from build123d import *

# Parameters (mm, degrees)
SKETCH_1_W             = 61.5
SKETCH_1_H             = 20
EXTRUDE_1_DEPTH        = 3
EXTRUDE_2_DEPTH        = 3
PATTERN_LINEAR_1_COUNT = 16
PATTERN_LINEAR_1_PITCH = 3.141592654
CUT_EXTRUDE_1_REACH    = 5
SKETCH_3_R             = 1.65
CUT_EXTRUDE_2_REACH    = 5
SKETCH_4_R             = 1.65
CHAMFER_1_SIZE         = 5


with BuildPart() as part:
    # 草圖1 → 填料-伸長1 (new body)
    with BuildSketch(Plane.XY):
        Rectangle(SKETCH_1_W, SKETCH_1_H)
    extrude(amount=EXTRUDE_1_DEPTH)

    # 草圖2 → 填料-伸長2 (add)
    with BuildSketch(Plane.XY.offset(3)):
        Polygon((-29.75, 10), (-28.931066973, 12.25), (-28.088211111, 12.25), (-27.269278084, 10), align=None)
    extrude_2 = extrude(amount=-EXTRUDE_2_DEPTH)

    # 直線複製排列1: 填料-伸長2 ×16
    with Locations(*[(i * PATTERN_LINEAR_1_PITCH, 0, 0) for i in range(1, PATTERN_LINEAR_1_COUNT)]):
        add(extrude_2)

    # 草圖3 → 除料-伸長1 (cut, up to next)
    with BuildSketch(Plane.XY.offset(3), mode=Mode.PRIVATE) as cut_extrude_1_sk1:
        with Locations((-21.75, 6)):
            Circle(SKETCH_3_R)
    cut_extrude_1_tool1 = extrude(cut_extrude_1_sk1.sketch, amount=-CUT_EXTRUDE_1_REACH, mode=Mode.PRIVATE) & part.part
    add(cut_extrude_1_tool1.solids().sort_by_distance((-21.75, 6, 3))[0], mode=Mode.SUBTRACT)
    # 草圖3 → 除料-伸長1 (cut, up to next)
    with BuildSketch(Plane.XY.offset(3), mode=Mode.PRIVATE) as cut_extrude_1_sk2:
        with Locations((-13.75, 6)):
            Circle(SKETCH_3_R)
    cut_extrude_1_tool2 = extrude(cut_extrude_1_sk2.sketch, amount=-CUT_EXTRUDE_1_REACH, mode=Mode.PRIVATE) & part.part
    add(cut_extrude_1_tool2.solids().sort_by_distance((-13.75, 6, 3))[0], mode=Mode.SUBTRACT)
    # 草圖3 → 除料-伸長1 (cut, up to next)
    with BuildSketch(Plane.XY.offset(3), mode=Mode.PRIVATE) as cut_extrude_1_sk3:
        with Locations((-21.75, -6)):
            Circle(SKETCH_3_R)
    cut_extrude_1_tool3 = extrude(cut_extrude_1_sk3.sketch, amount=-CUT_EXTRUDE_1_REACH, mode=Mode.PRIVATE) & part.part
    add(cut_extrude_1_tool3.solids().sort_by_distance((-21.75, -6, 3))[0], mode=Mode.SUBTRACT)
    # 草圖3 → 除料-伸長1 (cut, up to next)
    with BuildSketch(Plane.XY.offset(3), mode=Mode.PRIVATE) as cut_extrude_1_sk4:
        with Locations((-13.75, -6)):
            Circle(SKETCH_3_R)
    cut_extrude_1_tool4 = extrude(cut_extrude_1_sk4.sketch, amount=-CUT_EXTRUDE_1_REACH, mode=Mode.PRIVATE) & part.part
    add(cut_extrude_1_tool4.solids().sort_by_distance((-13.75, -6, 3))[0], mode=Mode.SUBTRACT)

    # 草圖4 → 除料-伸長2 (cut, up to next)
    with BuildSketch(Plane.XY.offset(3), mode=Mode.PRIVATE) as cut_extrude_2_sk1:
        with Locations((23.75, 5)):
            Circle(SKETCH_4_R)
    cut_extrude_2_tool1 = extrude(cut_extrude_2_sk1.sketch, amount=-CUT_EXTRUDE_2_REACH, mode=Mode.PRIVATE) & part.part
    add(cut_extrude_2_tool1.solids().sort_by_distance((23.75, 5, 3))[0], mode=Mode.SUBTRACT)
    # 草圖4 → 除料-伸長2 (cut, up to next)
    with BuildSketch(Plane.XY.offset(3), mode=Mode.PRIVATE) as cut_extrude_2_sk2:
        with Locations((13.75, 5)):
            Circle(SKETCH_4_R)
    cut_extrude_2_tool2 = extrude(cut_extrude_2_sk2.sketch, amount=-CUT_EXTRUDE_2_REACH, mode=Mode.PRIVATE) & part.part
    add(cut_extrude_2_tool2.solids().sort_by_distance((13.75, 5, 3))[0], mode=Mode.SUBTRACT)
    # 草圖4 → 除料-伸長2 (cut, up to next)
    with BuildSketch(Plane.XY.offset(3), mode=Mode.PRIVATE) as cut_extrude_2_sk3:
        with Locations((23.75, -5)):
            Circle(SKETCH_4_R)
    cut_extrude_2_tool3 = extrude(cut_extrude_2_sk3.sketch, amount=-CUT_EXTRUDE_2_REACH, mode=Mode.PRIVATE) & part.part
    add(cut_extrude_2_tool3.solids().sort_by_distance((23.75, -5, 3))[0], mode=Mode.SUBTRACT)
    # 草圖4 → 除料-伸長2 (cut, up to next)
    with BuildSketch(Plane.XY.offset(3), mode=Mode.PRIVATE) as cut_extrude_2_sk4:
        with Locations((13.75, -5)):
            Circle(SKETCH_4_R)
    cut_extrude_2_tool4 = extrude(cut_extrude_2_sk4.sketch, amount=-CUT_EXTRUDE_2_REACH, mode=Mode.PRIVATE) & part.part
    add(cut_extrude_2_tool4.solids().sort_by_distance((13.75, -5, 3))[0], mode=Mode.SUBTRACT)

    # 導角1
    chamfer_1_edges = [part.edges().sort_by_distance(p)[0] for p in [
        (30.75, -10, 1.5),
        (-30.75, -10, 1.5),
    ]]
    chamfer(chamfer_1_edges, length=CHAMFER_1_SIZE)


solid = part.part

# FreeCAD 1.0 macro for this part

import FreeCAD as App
import Part
import Sketcher
from FreeCAD import Vector
Q = App.Units.Quantity


def edges_at(feature, points):
    """Names of the edges that pass closest to the given points."""
    edges = feature.Shape.Edges
    near = lambda p: min(range(len(edges)), key=lambda i: edges[i].distToShape(Part.Vertex(*p))[0])
    return sorted({f"Edge{near(p) + 1}" for p in points})

doc = App.newDocument("Part")
body = doc.addObject("PartDesign::Body", "Body")

sketch1 = body.newObject("Sketcher::SketchObject", "Sketch")
sketch1.AttachmentSupport = (doc.getObject("XY_Plane"), [""])
sketch1.MapMode = "FlatFace"
sketch1.addGeometry([
    Part.LineSegment(Vector(-31, 10, 0), Vector(-31, -10, 0)),
    Part.LineSegment(Vector(-31, -10, 0), Vector(31, -10, 0)),
    Part.LineSegment(Vector(31, -10, 0), Vector(31, 10, 0)),
    Part.LineSegment(Vector(31, 10, 0), Vector(-31, 10, 0)),
], False)
sketch1.addConstraint([
    Sketcher.Constraint("Coincident", 0, 2, 1, 1),
    Sketcher.Constraint("Coincident", 1, 2, 2, 1),
    Sketcher.Constraint("Coincident", 2, 2, 3, 1),
    Sketcher.Constraint("Coincident", 3, 2, 0, 1),
    Sketcher.Constraint("Vertical", 0),
    Sketcher.Constraint("Horizontal", 1),
    Sketcher.Constraint("Vertical", 2),
    Sketcher.Constraint("Horizontal", 3),
    Sketcher.Constraint("Symmetric", 0, 2, 2, 2, -1, 1),
    Sketcher.Constraint("DistanceY", 0, 2, 0, 1, Q("20 mm")),
    Sketcher.Constraint("DistanceX", 1, 1, 1, 2, Q("61.5 mm")),
])
pad1 = body.newObject("PartDesign::Pad", "Pad")
pad1.Profile = sketch1
pad1.Length = 3

sketch2 = body.newObject("Sketcher::SketchObject", "Sketch001")
sketch2.AttachmentSupport = (doc.getObject("XY_Plane"), [""])
sketch2.MapMode = "FlatFace"
sketch2.AttachmentOffset = App.Placement(Vector(0, 0, 3), App.Rotation())
sketch2.addGeometry([
    Part.LineSegment(Vector(-28.9, 12.2, 0), Vector(-29.8, 10, 0)),
    Part.LineSegment(Vector(-29.8, 10, 0), Vector(-27.3, 10, 0)),
    Part.LineSegment(Vector(-27.3, 10, 0), Vector(-28.1, 12.2, 0)),
    Part.LineSegment(Vector(-28.1, 12.2, 0), Vector(-28.9, 12.2, 0)),
], False)
sketch2.addConstraint([
    Sketcher.Constraint("Coincident", 0, 2, 1, 1),
    Sketcher.Constraint("Coincident", 1, 2, 2, 1),
    Sketcher.Constraint("Coincident", 2, 2, 3, 1),
    Sketcher.Constraint("Coincident", 3, 2, 0, 1),
    Sketcher.Constraint("Horizontal", 1),
    Sketcher.Constraint("Horizontal", 3),
    Sketcher.Constraint("Equal", 0, 2),
    Sketcher.Constraint("Angle", 0, Q("-110 deg")),
    Sketcher.Constraint("DistanceY", -1, 1, 0, 2, Q("10 mm")),
    Sketcher.Constraint("DistanceX", 0, 2, -1, 1, Q("29.75 mm")),
    Sketcher.Constraint("DistanceY", -1, 1, 2, 2, Q("12.25 mm")),
    Sketcher.Constraint("DistanceX", 1, 1, 1, 2, Q("2.480722 mm")),
])
pad2 = body.newObject("PartDesign::Pad", "Pad001")
pad2.Profile = sketch2
pad2.Length = 3
pad2.Reversed = True
doc.recompute()

linearpattern = body.newObject("PartDesign::LinearPattern", "LinearPattern")
linearpattern.Originals = [pad2]
linearpattern.Direction = (doc.getObject("X_Axis"), [""])
linearpattern.Mode = "offset"
linearpattern.Offset = 3.141593
linearpattern.Occurrences = 16
body.Tip = linearpattern

sketch3 = body.newObject("Sketcher::SketchObject", "Sketch002")
sketch3.AttachmentSupport = (doc.getObject("XY_Plane"), [""])
sketch3.MapMode = "FlatFace"
sketch3.AttachmentOffset = App.Placement(Vector(0, 0, 3), App.Rotation())
sketch3.addGeometry(Part.Circle(Vector(-21.8, 6, 0), Vector(0, 0, 1), 1.6), False)
sketch3.addConstraint([
    Sketcher.Constraint("Diameter", 0, Q("3.3 mm")),
    Sketcher.Constraint("DistanceY", -1, 1, 0, 3, Q("6 mm")),
    Sketcher.Constraint("DistanceX", 0, 3, -1, 1, Q("21.75 mm")),
])
pocket1 = body.newObject("PartDesign::Pocket", "Pocket")
pocket1.Profile = sketch3
pocket1.Type = "UpToFirst"

sketch4 = body.newObject("Sketcher::SketchObject", "Sketch003")
sketch4.AttachmentSupport = (doc.getObject("XY_Plane"), [""])
sketch4.MapMode = "FlatFace"
sketch4.AttachmentOffset = App.Placement(Vector(0, 0, 3), App.Rotation())
sketch4.addGeometry(Part.Circle(Vector(-13.8, 6, 0), Vector(0, 0, 1), 1.6), False)
sketch4.addConstraint([
    Sketcher.Constraint("Diameter", 0, Q("3.3 mm")),
    Sketcher.Constraint("DistanceY", -1, 1, 0, 3, Q("6 mm")),
    Sketcher.Constraint("DistanceX", 0, 3, -1, 1, Q("13.75 mm")),
])
pocket2 = body.newObject("PartDesign::Pocket", "Pocket001")
pocket2.Profile = sketch4
pocket2.Type = "UpToFirst"

sketch5 = body.newObject("Sketcher::SketchObject", "Sketch004")
sketch5.AttachmentSupport = (doc.getObject("XY_Plane"), [""])
sketch5.MapMode = "FlatFace"
sketch5.AttachmentOffset = App.Placement(Vector(0, 0, 3), App.Rotation())
sketch5.addGeometry(Part.Circle(Vector(-21.8, -6, 0), Vector(0, 0, 1), 1.6), False)
sketch5.addConstraint([
    Sketcher.Constraint("Diameter", 0, Q("3.3 mm")),
    Sketcher.Constraint("DistanceY", 0, 3, -1, 1, Q("6 mm")),
    Sketcher.Constraint("DistanceX", 0, 3, -1, 1, Q("21.75 mm")),
])
pocket3 = body.newObject("PartDesign::Pocket", "Pocket002")
pocket3.Profile = sketch5
pocket3.Type = "UpToFirst"

sketch6 = body.newObject("Sketcher::SketchObject", "Sketch005")
sketch6.AttachmentSupport = (doc.getObject("XY_Plane"), [""])
sketch6.MapMode = "FlatFace"
sketch6.AttachmentOffset = App.Placement(Vector(0, 0, 3), App.Rotation())
sketch6.addGeometry(Part.Circle(Vector(-13.8, -6, 0), Vector(0, 0, 1), 1.6), False)
sketch6.addConstraint([
    Sketcher.Constraint("Diameter", 0, Q("3.3 mm")),
    Sketcher.Constraint("DistanceY", 0, 3, -1, 1, Q("6 mm")),
    Sketcher.Constraint("DistanceX", 0, 3, -1, 1, Q("13.75 mm")),
])
pocket4 = body.newObject("PartDesign::Pocket", "Pocket003")
pocket4.Profile = sketch6
pocket4.Type = "UpToFirst"

sketch7 = body.newObject("Sketcher::SketchObject", "Sketch006")
sketch7.AttachmentSupport = (doc.getObject("XY_Plane"), [""])
sketch7.MapMode = "FlatFace"
sketch7.AttachmentOffset = App.Placement(Vector(0, 0, 3), App.Rotation())
sketch7.addGeometry(Part.Circle(Vector(23.8, 5, 0), Vector(0, 0, 1), 1.6), False)
sketch7.addConstraint([
    Sketcher.Constraint("Diameter", 0, Q("3.3 mm")),
    Sketcher.Constraint("DistanceY", -1, 1, 0, 3, Q("5 mm")),
    Sketcher.Constraint("DistanceX", -1, 1, 0, 3, Q("23.75 mm")),
])
pocket5 = body.newObject("PartDesign::Pocket", "Pocket004")
pocket5.Profile = sketch7
pocket5.Type = "UpToFirst"

sketch8 = body.newObject("Sketcher::SketchObject", "Sketch007")
sketch8.AttachmentSupport = (doc.getObject("XY_Plane"), [""])
sketch8.MapMode = "FlatFace"
sketch8.AttachmentOffset = App.Placement(Vector(0, 0, 3), App.Rotation())
sketch8.addGeometry(Part.Circle(Vector(13.8, 5, 0), Vector(0, 0, 1), 1.6), False)
sketch8.addConstraint([
    Sketcher.Constraint("Diameter", 0, Q("3.3 mm")),
    Sketcher.Constraint("DistanceY", -1, 1, 0, 3, Q("5 mm")),
    Sketcher.Constraint("DistanceX", -1, 1, 0, 3, Q("13.75 mm")),
])
pocket6 = body.newObject("PartDesign::Pocket", "Pocket005")
pocket6.Profile = sketch8
pocket6.Type = "UpToFirst"

sketch9 = body.newObject("Sketcher::SketchObject", "Sketch008")
sketch9.AttachmentSupport = (doc.getObject("XY_Plane"), [""])
sketch9.MapMode = "FlatFace"
sketch9.AttachmentOffset = App.Placement(Vector(0, 0, 3), App.Rotation())
sketch9.addGeometry(Part.Circle(Vector(23.8, -5, 0), Vector(0, 0, 1), 1.6), False)
sketch9.addConstraint([
    Sketcher.Constraint("Diameter", 0, Q("3.3 mm")),
    Sketcher.Constraint("DistanceY", 0, 3, -1, 1, Q("5 mm")),
    Sketcher.Constraint("DistanceX", -1, 1, 0, 3, Q("23.75 mm")),
])
pocket7 = body.newObject("PartDesign::Pocket", "Pocket006")
pocket7.Profile = sketch9
pocket7.Type = "UpToFirst"

sketch10 = body.newObject("Sketcher::SketchObject", "Sketch009")
sketch10.AttachmentSupport = (doc.getObject("XY_Plane"), [""])
sketch10.MapMode = "FlatFace"
sketch10.AttachmentOffset = App.Placement(Vector(0, 0, 3), App.Rotation())
sketch10.addGeometry(Part.Circle(Vector(13.8, -5, 0), Vector(0, 0, 1), 1.6), False)
sketch10.addConstraint([
    Sketcher.Constraint("Diameter", 0, Q("3.3 mm")),
    Sketcher.Constraint("DistanceY", 0, 3, -1, 1, Q("5 mm")),
    Sketcher.Constraint("DistanceX", -1, 1, 0, 3, Q("13.75 mm")),
])
pocket8 = body.newObject("PartDesign::Pocket", "Pocket007")
pocket8.Profile = sketch10
pocket8.Type = "UpToFirst"
doc.recompute()

chamfer = body.newObject("PartDesign::Chamfer", "Chamfer")
chamfer.Base = (pocket8, edges_at(pocket8, [(30.75, -10, 1.5), (-30.75, -10, 1.5)]))
chamfer.Size = 5

doc.recompute()
